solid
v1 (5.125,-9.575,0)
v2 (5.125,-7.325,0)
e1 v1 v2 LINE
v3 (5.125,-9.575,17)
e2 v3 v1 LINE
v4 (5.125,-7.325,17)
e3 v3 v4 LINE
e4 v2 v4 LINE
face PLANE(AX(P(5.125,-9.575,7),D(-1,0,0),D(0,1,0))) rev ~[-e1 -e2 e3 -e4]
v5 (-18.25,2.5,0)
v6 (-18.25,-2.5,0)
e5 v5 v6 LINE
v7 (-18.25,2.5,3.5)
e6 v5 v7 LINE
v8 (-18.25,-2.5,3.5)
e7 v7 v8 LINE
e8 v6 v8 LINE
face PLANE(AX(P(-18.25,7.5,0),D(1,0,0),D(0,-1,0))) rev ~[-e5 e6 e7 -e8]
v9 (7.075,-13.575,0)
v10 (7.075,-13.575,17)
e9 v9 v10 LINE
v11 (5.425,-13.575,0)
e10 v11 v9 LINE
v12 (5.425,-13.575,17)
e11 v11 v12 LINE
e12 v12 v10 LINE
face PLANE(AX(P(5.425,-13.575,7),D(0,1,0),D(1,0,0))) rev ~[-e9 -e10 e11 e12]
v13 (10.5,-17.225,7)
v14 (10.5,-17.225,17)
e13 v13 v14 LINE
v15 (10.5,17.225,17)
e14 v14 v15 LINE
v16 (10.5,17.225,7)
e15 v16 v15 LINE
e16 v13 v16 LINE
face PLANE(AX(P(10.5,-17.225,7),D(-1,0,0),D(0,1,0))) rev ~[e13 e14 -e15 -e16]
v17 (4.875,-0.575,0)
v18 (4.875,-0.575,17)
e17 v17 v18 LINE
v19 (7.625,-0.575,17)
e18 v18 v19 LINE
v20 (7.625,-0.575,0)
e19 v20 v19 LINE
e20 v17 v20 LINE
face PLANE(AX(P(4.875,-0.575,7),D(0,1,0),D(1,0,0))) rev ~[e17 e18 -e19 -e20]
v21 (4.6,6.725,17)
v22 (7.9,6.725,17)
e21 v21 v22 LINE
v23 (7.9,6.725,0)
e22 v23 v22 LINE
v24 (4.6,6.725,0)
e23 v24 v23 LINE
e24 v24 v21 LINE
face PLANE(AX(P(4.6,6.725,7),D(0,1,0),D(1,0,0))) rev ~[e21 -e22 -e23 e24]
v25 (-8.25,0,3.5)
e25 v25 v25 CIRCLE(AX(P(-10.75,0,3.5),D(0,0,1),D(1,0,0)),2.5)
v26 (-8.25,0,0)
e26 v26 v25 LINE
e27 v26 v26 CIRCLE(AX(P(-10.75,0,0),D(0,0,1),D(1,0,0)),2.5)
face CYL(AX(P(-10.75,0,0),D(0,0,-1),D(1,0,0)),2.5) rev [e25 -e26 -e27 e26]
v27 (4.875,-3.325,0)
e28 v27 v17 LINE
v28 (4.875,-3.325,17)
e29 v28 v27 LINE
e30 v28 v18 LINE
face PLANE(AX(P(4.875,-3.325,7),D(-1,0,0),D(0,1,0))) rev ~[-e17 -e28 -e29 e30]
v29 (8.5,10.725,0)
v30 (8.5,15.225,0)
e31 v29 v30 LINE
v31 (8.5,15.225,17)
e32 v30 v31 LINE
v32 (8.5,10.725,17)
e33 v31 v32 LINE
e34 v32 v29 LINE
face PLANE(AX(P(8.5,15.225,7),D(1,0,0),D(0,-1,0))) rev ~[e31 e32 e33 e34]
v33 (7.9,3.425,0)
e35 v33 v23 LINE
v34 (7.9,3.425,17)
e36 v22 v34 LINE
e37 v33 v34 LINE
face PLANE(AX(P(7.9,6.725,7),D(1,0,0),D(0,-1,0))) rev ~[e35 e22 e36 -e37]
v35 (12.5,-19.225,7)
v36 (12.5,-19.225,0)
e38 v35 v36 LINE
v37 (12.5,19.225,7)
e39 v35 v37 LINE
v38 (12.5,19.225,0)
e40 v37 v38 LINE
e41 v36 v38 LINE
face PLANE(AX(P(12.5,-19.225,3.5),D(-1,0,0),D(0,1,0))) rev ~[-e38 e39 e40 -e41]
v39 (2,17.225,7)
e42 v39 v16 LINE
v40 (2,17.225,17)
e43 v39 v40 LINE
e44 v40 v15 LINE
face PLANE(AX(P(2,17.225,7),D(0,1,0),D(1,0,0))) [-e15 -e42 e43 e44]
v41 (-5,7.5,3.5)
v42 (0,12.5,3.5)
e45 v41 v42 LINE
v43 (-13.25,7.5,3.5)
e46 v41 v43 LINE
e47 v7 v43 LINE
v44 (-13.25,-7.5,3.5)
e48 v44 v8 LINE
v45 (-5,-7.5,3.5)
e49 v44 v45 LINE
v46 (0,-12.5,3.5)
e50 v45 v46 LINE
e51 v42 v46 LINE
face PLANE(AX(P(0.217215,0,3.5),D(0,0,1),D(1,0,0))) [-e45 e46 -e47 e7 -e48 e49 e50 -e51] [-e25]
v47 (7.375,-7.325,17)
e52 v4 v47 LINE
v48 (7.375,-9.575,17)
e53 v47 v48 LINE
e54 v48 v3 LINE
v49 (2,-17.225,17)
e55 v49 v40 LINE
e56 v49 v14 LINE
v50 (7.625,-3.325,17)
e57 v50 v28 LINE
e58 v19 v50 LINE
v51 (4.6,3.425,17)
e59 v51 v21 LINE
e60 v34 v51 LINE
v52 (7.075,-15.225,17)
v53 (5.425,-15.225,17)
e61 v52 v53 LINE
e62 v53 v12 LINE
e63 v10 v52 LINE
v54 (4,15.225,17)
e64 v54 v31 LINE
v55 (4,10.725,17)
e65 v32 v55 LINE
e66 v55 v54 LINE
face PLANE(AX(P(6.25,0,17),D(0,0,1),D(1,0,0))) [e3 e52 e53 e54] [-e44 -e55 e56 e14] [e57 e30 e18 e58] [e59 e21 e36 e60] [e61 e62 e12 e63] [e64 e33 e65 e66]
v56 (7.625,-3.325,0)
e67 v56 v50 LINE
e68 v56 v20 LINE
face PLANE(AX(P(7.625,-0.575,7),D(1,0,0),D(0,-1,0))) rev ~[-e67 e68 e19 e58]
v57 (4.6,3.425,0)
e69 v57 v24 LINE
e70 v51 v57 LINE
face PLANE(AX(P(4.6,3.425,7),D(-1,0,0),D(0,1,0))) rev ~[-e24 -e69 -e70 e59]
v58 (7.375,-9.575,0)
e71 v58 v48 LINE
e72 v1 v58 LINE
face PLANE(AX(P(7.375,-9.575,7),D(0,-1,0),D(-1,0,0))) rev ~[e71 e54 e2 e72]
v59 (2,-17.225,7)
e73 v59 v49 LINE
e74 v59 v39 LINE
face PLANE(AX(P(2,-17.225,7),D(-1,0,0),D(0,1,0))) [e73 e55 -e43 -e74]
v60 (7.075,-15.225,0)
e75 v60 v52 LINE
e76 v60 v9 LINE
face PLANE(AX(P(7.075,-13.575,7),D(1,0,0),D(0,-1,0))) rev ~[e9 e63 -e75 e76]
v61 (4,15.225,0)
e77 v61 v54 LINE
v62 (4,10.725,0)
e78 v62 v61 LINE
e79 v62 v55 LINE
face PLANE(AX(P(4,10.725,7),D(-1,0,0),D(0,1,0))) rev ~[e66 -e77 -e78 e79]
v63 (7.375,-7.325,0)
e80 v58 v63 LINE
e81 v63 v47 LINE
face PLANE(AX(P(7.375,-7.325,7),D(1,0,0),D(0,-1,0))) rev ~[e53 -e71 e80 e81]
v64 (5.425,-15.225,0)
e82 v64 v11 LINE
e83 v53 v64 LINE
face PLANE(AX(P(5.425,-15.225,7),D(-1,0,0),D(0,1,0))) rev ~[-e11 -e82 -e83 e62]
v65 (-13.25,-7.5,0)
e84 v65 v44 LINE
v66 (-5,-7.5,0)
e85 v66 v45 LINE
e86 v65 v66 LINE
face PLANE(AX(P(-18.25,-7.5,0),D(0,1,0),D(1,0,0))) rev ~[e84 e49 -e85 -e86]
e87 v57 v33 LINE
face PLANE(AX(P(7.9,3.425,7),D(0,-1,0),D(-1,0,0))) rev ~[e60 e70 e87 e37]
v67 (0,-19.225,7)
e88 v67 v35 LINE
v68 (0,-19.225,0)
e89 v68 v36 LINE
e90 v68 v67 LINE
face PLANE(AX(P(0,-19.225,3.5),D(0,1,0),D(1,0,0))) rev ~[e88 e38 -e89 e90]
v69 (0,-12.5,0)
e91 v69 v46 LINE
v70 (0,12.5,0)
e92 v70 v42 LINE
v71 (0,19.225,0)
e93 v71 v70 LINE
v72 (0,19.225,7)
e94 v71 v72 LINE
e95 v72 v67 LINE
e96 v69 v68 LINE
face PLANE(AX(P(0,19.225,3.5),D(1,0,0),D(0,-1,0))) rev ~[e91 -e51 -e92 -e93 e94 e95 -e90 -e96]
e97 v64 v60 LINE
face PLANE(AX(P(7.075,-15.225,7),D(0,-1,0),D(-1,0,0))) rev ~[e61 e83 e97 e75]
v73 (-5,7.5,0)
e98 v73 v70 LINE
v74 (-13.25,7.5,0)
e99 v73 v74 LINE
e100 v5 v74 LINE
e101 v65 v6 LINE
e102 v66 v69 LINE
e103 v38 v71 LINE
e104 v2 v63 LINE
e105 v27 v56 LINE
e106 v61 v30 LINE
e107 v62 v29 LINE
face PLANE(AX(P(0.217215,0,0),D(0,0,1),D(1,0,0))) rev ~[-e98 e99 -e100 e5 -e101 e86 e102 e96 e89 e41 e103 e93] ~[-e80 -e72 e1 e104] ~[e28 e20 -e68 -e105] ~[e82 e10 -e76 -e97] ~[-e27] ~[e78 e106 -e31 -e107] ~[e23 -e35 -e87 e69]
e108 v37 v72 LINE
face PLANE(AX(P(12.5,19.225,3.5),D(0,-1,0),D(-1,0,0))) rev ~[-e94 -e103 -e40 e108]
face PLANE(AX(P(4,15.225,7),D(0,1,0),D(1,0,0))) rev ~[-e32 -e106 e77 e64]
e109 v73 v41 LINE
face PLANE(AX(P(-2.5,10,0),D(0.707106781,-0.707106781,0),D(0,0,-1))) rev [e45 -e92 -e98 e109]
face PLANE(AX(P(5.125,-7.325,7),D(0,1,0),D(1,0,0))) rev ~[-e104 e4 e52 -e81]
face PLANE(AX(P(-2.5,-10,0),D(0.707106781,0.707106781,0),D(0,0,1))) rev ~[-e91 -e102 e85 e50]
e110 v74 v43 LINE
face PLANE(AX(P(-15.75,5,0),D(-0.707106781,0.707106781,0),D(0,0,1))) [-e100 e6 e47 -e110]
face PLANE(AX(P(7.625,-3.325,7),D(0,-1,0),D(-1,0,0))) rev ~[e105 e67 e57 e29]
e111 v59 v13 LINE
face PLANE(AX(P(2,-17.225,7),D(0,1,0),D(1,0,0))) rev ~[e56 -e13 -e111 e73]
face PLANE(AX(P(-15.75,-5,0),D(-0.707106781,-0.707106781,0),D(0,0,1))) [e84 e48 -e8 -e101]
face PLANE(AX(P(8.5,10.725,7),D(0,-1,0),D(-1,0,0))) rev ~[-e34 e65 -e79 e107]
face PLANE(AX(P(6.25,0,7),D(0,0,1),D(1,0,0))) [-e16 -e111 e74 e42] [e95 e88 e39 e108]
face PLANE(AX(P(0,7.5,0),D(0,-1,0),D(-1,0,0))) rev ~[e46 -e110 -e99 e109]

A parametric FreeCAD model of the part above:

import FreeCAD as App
import Part
import Sketcher
from FreeCAD import Vector
Q = App.Units.Quantity


def edges_at(feature, points):
    """Names of the edges that pass closest to the given points."""
    edges = feature.Shape.Edges
    near = lambda p: min(range(len(edges)), key=lambda i: edges[i].distToShape(Part.Vertex(*p))[0])
    return sorted({f"Edge{near(p) + 1}" for p in points})


def add_polygon(sketch, points):
    """Adds a closed chain of lines whose ends are joined by coincident constraints."""
    first, n = sketch.GeometryCount, len(points)
    for a, b in zip(points, points[1:] + points[:1]):
        sketch.addGeometry(Part.LineSegment(App.Vector(*a, 0), App.Vector(*b, 0)), False)
    for i in range(n):
        sketch.addConstraint(Sketcher.Constraint("Coincident", first + i, 2, first + (i + 1) % n, 1))

doc = App.newDocument("Part")
body = doc.addObject("PartDesign::Body", "Body")

sketch1 = body.newObject("Sketcher::SketchObject", "Sketch")
sketch1.AttachmentSupport = (doc.getObject("XY_Plane"), [""])
sketch1.MapMode = "FlatFace"
add_polygon(sketch1, [(12.5, 19.225), (0, 19.225), (0, 7.5), (-18.25, 7.5), (-18.25, -7.5), (0, -7.5), (0, -19.225), (12.5, -19.225)])
add_polygon(sketch1, [(7.075, -15.225), (5.425, -15.225), (5.425, -13.575), (7.075, -13.575)])
add_polygon(sketch1, [(7.375, -9.575), (5.125, -9.575), (5.125, -7.325), (7.375, -7.325)])
add_polygon(sketch1, [(7.625, -3.325), (4.875, -3.325), (4.875, -0.575), (7.625, -0.575)])
sketch1.addGeometry(Part.Circle(Vector(-10.75, 0, 0), Vector(0, 0, 1), 2.5), False)
add_polygon(sketch1, [(7.9, 3.425), (4.6, 3.425), (4.6, 6.725), (7.9, 6.725)])
add_polygon(sketch1, [(8.5, 10.725), (4, 10.725), (4, 15.225), (8.5, 15.225)])
sketch1.addConstraint(Sketcher.Constraint("Horizontal", 0))
sketch1.addConstraint(Sketcher.Constraint("Vertical", 1))
sketch1.addConstraint(Sketcher.Constraint("Horizontal", 2))
sketch1.addConstraint(Sketcher.Constraint("Vertical", 3))
sketch1.addConstraint(Sketcher.Constraint("Horizontal", 4))
sketch1.addConstraint(Sketcher.Constraint("Vertical", 5))
sketch1.addConstraint(Sketcher.Constraint("Horizontal", 6))
sketch1.addConstraint(Sketcher.Constraint("Vertical", 7))
sketch1.addConstraint(Sketcher.Constraint("Horizontal", 8))
sketch1.addConstraint(Sketcher.Constraint("Vertical", 9))
sketch1.addConstraint(Sketcher.Constraint("Horizontal", 10))
sketch1.addConstraint(Sketcher.Constraint("Vertical", 11))
sketch1.addConstraint(Sketcher.Constraint("Horizontal", 12))
sketch1.addConstraint(Sketcher.Constraint("Vertical", 13))
sketch1.addConstraint(Sketcher.Constraint("Horizontal", 14))
sketch1.addConstraint(Sketcher.Constraint("Vertical", 15))
sketch1.addConstraint(Sketcher.Constraint("Horizontal", 16))
sketch1.addConstraint(Sketcher.Constraint("Vertical", 17))
sketch1.addConstraint(Sketcher.Constraint("Horizontal", 18))
sketch1.addConstraint(Sketcher.Constraint("Vertical", 19))
sketch1.addConstraint(Sketcher.Constraint("Horizontal", 21))
sketch1.addConstraint(Sketcher.Constraint("Vertical", 22))
sketch1.addConstraint(Sketcher.Constraint("Horizontal", 23))
sketch1.addConstraint(Sketcher.Constraint("Vertical", 24))
sketch1.addConstraint(Sketcher.Constraint("Horizontal", 25))
sketch1.addConstraint(Sketcher.Constraint("Vertical", 26))
sketch1.addConstraint(Sketcher.Constraint("Horizontal", 27))
sketch1.addConstraint(Sketcher.Constraint("Vertical", 28))
sketch1.addConstraint(Sketcher.Constraint("Symmetric", 1, 2, 4, 2, -1, 1))
sketch1.addConstraint(Sketcher.Constraint("Symmetric", 0, 2, 5, 2, -1))
sketch1.addConstraint(Sketcher.Constraint("PointOnObject", 20, 3, -1))
sketch1.addConstraint(Sketcher.Constraint("Equal", 10, 9))
sketch1.addConstraint(Sketcher.Constraint("Equal", 14, 13))
sketch1.addConstraint(Sketcher.Constraint("Equal", 18, 17))
sketch1.addConstraint(Sketcher.Constraint("Equal", 23, 22))
sketch1.addConstraint(Sketcher.Constraint("Equal", 27, 26))
sketch1.addConstraint(Sketcher.Constraint("Diameter", 20, Q("5 mm")))
sketch1.addConstraint(Sketcher.Constraint("DistanceY", 3, 2, 3, 1, Q("15 mm")))
sketch1.addConstraint(Sketcher.Constraint("DistanceX", 0, 2, 0, 1, Q("12.5 mm")))
sketch1.addConstraint(Sketcher.Constraint("DistanceX", 21, 2, 21, 1, Q("3.3 mm")))
sketch1.addConstraint(Sketcher.Constraint("DistanceX", 25, 2, 25, 1, Q("4.5 mm")))
sketch1.addConstraint(Sketcher.Constraint("DistanceX", -1, 1, 25, 2, Q("4 mm")))
sketch1.addConstraint(Sketcher.Constraint("DistanceY", 5, 2, 8, 2, Q("4 mm")))
sketch1.addConstraint(Sketcher.Constraint("DistanceY", 9, 2, 12, 2, Q("4 mm")))
sketch1.addConstraint(Sketcher.Constraint("DistanceY", 13, 2, 16, 2, Q("4 mm")))
sketch1.addConstraint(Sketcher.Constraint("DistanceY", 12, 2, 17, 2, Q("9 mm")))
sketch1.addConstraint(Sketcher.Constraint("DistanceY", 17, 2, 21, 2, Q("4 mm")))
sketch1.addConstraint(Sketcher.Constraint("DistanceY", 22, 2, 25, 2, Q("4 mm")))
sketch1.addConstraint(Sketcher.Constraint("DistanceY", 26, 2, 0, 2, Q("4 mm")))
sketch1.addConstraint(Sketcher.Constraint("DistanceX", 2, 2, 2, 1, Q("18.25 mm")))
sketch1.addConstraint(Sketcher.Constraint("DistanceX", 8, 2, 8, 1, Q("1.65 mm")))
sketch1.addConstraint(Sketcher.Constraint("DistanceX", 12, 2, 12, 1, Q("2.25 mm")))
sketch1.addConstraint(Sketcher.Constraint("DistanceX", -1, 1, 21, 2, Q("4.6 mm")))
sketch1.addConstraint(Sketcher.Constraint("DistanceX", 2, 2, 20, 3, Q("7.5 mm")))
sketch1.addConstraint(Sketcher.Constraint("DistanceX", 12, 2, 9, 2, Q("0.3 mm")))
sketch1.addConstraint(Sketcher.Constraint("DistanceX", 16, 2, 14, 2, Q("2.5 mm")))
sketch1.addConstraint(Sketcher.Constraint("DistanceX", -1, 1, 8, 2, Q("5.425 mm")))
pad1 = body.newObject("PartDesign::Pad", "Pad")
pad1.Profile = sketch1
pad1.Length = 3.5

sketch2 = body.newObject("Sketcher::SketchObject", "Sketch001")
sketch2.AttachmentSupport = (doc.getObject("XY_Plane"), [""])
sketch2.MapMode = "FlatFace"
sketch2.AttachmentOffset = App.Placement(Vector(0, 0, 3.5), App.Rotation())
add_polygon(sketch2, [(12.5, 19.225), (0, 19.225), (0, -19.225), (12.5, -19.225)])
add_polygon(sketch2, [(7.075, -15.225), (5.425, -15.225), (5.425, -13.575), (7.075, -13.575)])
add_polygon(sketch2, [(7.375, -9.575), (5.125, -9.575), (5.125, -7.325), (7.375, -7.325)])
add_polygon(sketch2, [(7.625, -3.325), (4.875, -3.325), (4.875, -0.575), (7.625, -0.575)])
add_polygon(sketch2, [(7.9, 3.425), (4.6, 3.425), (4.6, 6.725), (7.9, 6.725)])
add_polygon(sketch2, [(8.5, 10.725), (4, 10.725), (4, 15.225), (8.5, 15.225)])
sketch2.addConstraint(Sketcher.Constraint("Horizontal", 0))
sketch2.addConstraint(Sketcher.Constraint("Vertical", 1))
sketch2.addConstraint(Sketcher.Constraint("Horizontal", 2))
sketch2.addConstraint(Sketcher.Constraint("Vertical", 3))
sketch2.addConstraint(Sketcher.Constraint("Horizontal", 4))
sketch2.addConstraint(Sketcher.Constraint("Vertical", 5))
sketch2.addConstraint(Sketcher.Constraint("Horizontal", 6))
sketch2.addConstraint(Sketcher.Constraint("Vertical", 7))
sketch2.addConstraint(Sketcher.Constraint("Horizontal", 8))
sketch2.addConstraint(Sketcher.Constraint("Vertical", 9))
sketch2.addConstraint(Sketcher.Constraint("Horizontal", 10))
sketch2.addConstraint(Sketcher.Constraint("Vertical", 11))
sketch2.addConstraint(Sketcher.Constraint("Horizontal", 12))
sketch2.addConstraint(Sketcher.Constraint("Vertical", 13))
sketch2.addConstraint(Sketcher.Constraint("Horizontal", 14))
sketch2.addConstraint(Sketcher.Constraint("Vertical", 15))
sketch2.addConstraint(Sketcher.Constraint("Horizontal", 16))
sketch2.addConstraint(Sketcher.Constraint("Vertical", 17))
sketch2.addConstraint(Sketcher.Constraint("Horizontal", 18))
sketch2.addConstraint(Sketcher.Constraint("Vertical", 19))
sketch2.addConstraint(Sketcher.Constraint("Horizontal", 20))
sketch2.addConstraint(Sketcher.Constraint("Vertical", 21))
sketch2.addConstraint(Sketcher.Constraint("Horizontal", 22))
sketch2.addConstraint(Sketcher.Constraint("Vertical", 23))
sketch2.addConstraint(Sketcher.Constraint("Symmetric", 0, 2, 1, 2, -1, 1))
sketch2.addConstraint(Sketcher.Constraint("Equal", 6, 5))
sketch2.addConstraint(Sketcher.Constraint("Equal", 10, 9))
sketch2.addConstraint(Sketcher.Constraint("Equal", 14, 13))
sketch2.addConstraint(Sketcher.Constraint("Equal", 18, 17))
sketch2.addConstraint(Sketcher.Constraint("Equal", 22, 21))
sketch2.addConstraint(Sketcher.Constraint("DistanceX", 0, 2, 0, 1, Q("12.5 mm")))
sketch2.addConstraint(Sketcher.Constraint("DistanceX", 16, 2, 16, 1, Q("3.3 mm")))
sketch2.addConstraint(Sketcher.Constraint("DistanceX", 20, 2, 20, 1, Q("4.5 mm")))
sketch2.addConstraint(Sketcher.Constraint("DistanceX", -1, 1, 20, 2, Q("4 mm")))
sketch2.addConstraint(Sketcher.Constraint("DistanceY", 1, 2, 4, 2, Q("4 mm")))
sketch2.addConstraint(Sketcher.Constraint("DistanceY", 5, 2, 8, 2, Q("4 mm")))
sketch2.addConstraint(Sketcher.Constraint("DistanceY", 9, 2, 12, 2, Q("4 mm")))
sketch2.addConstraint(Sketcher.Constraint("DistanceY", 8, 2, 13, 2, Q("9 mm")))
sketch2.addConstraint(Sketcher.Constraint("DistanceY", 13, 2, 16, 2, Q("4 mm")))
sketch2.addConstraint(Sketcher.Constraint("DistanceY", 17, 2, 20, 2, Q("4 mm")))
sketch2.addConstraint(Sketcher.Constraint("DistanceY", 21, 2, 0, 2, Q("4 mm")))
sketch2.addConstraint(Sketcher.Constraint("DistanceX", 4, 2, 4, 1, Q("1.65 mm")))
sketch2.addConstraint(Sketcher.Constraint("DistanceX", 8, 2, 8, 1, Q("2.25 mm")))
sketch2.addConstraint(Sketcher.Constraint("DistanceX", -1, 1, 16, 2, Q("4.6 mm")))
sketch2.addConstraint(Sketcher.Constraint("DistanceX", 8, 2, 5, 2, Q("0.3 mm")))
sketch2.addConstraint(Sketcher.Constraint("DistanceX", 12, 2, 10, 2, Q("2.5 mm")))
sketch2.addConstraint(Sketcher.Constraint("DistanceX", -1, 1, 4, 2, Q("5.425 mm")))
pad2 = body.newObject("PartDesign::Pad", "Pad001")
pad2.Profile = sketch2
pad2.Length = 3.5

sketch3 = body.newObject("Sketcher::SketchObject", "Sketch002")
sketch3.AttachmentSupport = (doc.getObject("XY_Plane"), [""])
sketch3.MapMode = "FlatFace"
sketch3.AttachmentOffset = App.Placement(Vector(0, 0, 7), App.Rotation())
add_polygon(sketch3, [(2, 17.225), (2, -17.225), (10.5, -17.225), (10.5, 17.225)])
add_polygon(sketch3, [(5.425, -15.225), (5.425, -13.575), (7.075, -13.575), (7.075, -15.225)])
add_polygon(sketch3, [(5.125, -9.575), (5.125, -7.325), (7.375, -7.325), (7.375, -9.575)])
add_polygon(sketch3, [(4.875, -3.325), (4.875, -0.575), (7.625, -0.575), (7.625, -3.325)])
add_polygon(sketch3, [(4.6, 3.425), (4.6, 6.725), (7.9, 6.725), (7.9, 3.425)])
add_polygon(sketch3, [(8.5, 10.725), (4, 10.725), (4, 15.225), (8.5, 15.225)])
sketch3.addConstraint(Sketcher.Constraint("Vertical", 0))
sketch3.addConstraint(Sketcher.Constraint("Horizontal", 1))
sketch3.addConstraint(Sketcher.Constraint("Vertical", 2))
sketch3.addConstraint(Sketcher.Constraint("Horizontal", 3))
sketch3.addConstraint(Sketcher.Constraint("Vertical", 4))
sketch3.addConstraint(Sketcher.Constraint("Horizontal", 5))
sketch3.addConstraint(Sketcher.Constraint("Vertical", 6))
sketch3.addConstraint(Sketcher.Constraint("Horizontal", 7))
sketch3.addConstraint(Sketcher.Constraint("Vertical", 8))
sketch3.addConstraint(Sketcher.Constraint("Horizontal", 9))
sketch3.addConstraint(Sketcher.Constraint("Vertical", 10))
sketch3.addConstraint(Sketcher.Constraint("Horizontal", 11))
sketch3.addConstraint(Sketcher.Constraint("Vertical", 12))
sketch3.addConstraint(Sketcher.Constraint("Horizontal", 13))
sketch3.addConstraint(Sketcher.Constraint("Vertical", 14))
sketch3.addConstraint(Sketcher.Constraint("Horizontal", 15))
sketch3.addConstraint(Sketcher.Constraint("Vertical", 16))
sketch3.addConstraint(Sketcher.Constraint("Horizontal", 17))
sketch3.addConstraint(Sketcher.Constraint("Vertical", 18))
sketch3.addConstraint(Sketcher.Constraint("Horizontal", 19))
sketch3.addConstraint(Sketcher.Constraint("Horizontal", 20))
sketch3.addConstraint(Sketcher.Constraint("Vertical", 21))
sketch3.addConstraint(Sketcher.Constraint("Horizontal", 22))
sketch3.addConstraint(Sketcher.Constraint("Vertical", 23))
sketch3.addConstraint(Sketcher.Constraint("Equal", 7, 4))
sketch3.addConstraint(Sketcher.Constraint("Equal", 11, 8))
sketch3.addConstraint(Sketcher.Constraint("Equal", 15, 12))
sketch3.addConstraint(Sketcher.Constraint("Equal", 19, 16))
sketch3.addConstraint(Sketcher.Constraint("Equal", 22, 21))
sketch3.addConstraint(Sketcher.Constraint("DistanceX", 1, 1, 1, 2, Q("8.5 mm")))
sketch3.addConstraint(Sketcher.Constraint("DistanceX", 17, 1, 17, 2, Q("3.3 mm")))
sketch3.addConstraint(Sketcher.Constraint("DistanceX", 20, 2, 20, 1, Q("4.5 mm")))
sketch3.addConstraint(Sketcher.Constraint("DistanceX", -1, 1, 0, 2, Q("2 mm")))
sketch3.addConstraint(Sketcher.Constraint("DistanceX", -1, 1, 20, 2, Q("4 mm")))
sketch3.addConstraint(Sketcher.Constraint("DistanceY", 1, 2, 6, 2, Q("2 mm")))
sketch3.addConstraint(Sketcher.Constraint("DistanceY", 5, 2, 10, 2, Q("4 mm")))
sketch3.addConstraint(Sketcher.Constraint("DistanceY", 11, 2, 12, 2, Q("9 mm")))
sketch3.addConstraint(Sketcher.Constraint("DistanceY", 9, 2, 14, 2, Q("4 mm")))
sketch3.addConstraint(Sketcher.Constraint("DistanceY", 13, 2, 18, 2, Q("4 mm")))
sketch3.addConstraint(Sketcher.Constraint("DistanceY", 16, 2, 20, 2, Q("4 mm")))
sketch3.addConstraint(Sketcher.Constraint("DistanceY", 21, 2, 3, 2, Q("2 mm")))
sketch3.addConstraint(Sketcher.Constraint("DistanceX", 5, 1, 5, 2, Q("1.65 mm")))
sketch3.addConstraint(Sketcher.Constraint("DistanceX", 9, 1, 9, 2, Q("2.25 mm")))
sketch3.addConstraint(Sketcher.Constraint("DistanceX", -1, 1, 16, 2, Q("4.6 mm")))
sketch3.addConstraint(Sketcher.Constraint("DistanceX", 8, 2, 4, 2, Q("0.3 mm")))
sketch3.addConstraint(Sketcher.Constraint("DistanceX", 12, 2, 9, 2, Q("2.5 mm")))
sketch3.addConstraint(Sketcher.Constraint("DistanceY", 0, 2, -1, 1, Q("17.225 mm")))
sketch3.addConstraint(Sketcher.Constraint("DistanceX", -1, 1, 4, 2, Q("5.425 mm")))
pad3 = body.newObject("PartDesign::Pad", "Pad002")
pad3.Profile = sketch3
pad3.Length = 10
doc.recompute()

chamfer = body.newObject("PartDesign::Chamfer", "Chamfer")
chamfer.Base = (pad3, edges_at(pad3, [
    (0, 7.5, 1.75),
    (0, -7.5, 1.75),
    (-18.25, -7.5, 1.75),
    (-18.25, 7.5, 1.75),
]))
chamfer.Size = 5

doc.recompute()
